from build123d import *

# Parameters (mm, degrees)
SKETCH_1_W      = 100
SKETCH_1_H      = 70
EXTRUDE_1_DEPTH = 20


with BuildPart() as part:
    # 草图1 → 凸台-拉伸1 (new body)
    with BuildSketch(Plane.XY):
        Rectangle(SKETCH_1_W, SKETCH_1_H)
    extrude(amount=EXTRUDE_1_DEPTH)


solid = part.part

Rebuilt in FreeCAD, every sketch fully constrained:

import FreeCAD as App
import Part
import Sketcher
from FreeCAD import Vector


def add_polygon(sketch, points):
    """Adds a closed chain of lines whose ends are joined by coincident constraints."""
    first, n = sketch.GeometryCount, len(points)
    for a, b in zip(points, points[1:] + points[:1]):
        sketch.addGeometry(Part.LineSegment(App.Vector(*a, 0), App.Vector(*b, 0)), False)
    for i in range(n):
        sketch.addConstraint(Sketcher.Constraint("Coincident", first + i, 2, first + (i + 1) % n, 1))

doc = App.newDocument("Part")
body = doc.addObject("PartDesign::Body", "Body")

# Sketch on XY plane
sketch1 = body.newObject("Sketcher::SketchObject", "Sketch")
sketch1.AttachmentSupport = (doc.getObject("XY_Plane"), [""])
sketch1.MapMode = "FlatFace"
add_polygon(sketch1, [(-50, 35), (-50, -35), (50, -35), (50, 35)])  # lines 0-3
sketch1.addConstraint(Sketcher.Constraint("Vertical", 0))
sketch1.addConstraint(Sketcher.Constraint("Horizontal", 1))
sketch1.addConstraint(Sketcher.Constraint("Vertical", 2))
sketch1.addConstraint(Sketcher.Constraint("Horizontal", 3))
sketch1.addConstraint(Sketcher.Constraint("Symmetric", 0, 2, 2, 2, -1, 1))
sketch1.addConstraint(Sketcher.Constraint("DistanceX", 1, 1, 1, 2, 100.0))
sketch1.addConstraint(Sketcher.Constraint("DistanceY", 0, 2, 0, 1, 70.0))
pad1 = body.newObject("PartDesign::Pad", "Pad")
pad1.Profile = sketch1
pad1.Length = 20

doc.recompute()
